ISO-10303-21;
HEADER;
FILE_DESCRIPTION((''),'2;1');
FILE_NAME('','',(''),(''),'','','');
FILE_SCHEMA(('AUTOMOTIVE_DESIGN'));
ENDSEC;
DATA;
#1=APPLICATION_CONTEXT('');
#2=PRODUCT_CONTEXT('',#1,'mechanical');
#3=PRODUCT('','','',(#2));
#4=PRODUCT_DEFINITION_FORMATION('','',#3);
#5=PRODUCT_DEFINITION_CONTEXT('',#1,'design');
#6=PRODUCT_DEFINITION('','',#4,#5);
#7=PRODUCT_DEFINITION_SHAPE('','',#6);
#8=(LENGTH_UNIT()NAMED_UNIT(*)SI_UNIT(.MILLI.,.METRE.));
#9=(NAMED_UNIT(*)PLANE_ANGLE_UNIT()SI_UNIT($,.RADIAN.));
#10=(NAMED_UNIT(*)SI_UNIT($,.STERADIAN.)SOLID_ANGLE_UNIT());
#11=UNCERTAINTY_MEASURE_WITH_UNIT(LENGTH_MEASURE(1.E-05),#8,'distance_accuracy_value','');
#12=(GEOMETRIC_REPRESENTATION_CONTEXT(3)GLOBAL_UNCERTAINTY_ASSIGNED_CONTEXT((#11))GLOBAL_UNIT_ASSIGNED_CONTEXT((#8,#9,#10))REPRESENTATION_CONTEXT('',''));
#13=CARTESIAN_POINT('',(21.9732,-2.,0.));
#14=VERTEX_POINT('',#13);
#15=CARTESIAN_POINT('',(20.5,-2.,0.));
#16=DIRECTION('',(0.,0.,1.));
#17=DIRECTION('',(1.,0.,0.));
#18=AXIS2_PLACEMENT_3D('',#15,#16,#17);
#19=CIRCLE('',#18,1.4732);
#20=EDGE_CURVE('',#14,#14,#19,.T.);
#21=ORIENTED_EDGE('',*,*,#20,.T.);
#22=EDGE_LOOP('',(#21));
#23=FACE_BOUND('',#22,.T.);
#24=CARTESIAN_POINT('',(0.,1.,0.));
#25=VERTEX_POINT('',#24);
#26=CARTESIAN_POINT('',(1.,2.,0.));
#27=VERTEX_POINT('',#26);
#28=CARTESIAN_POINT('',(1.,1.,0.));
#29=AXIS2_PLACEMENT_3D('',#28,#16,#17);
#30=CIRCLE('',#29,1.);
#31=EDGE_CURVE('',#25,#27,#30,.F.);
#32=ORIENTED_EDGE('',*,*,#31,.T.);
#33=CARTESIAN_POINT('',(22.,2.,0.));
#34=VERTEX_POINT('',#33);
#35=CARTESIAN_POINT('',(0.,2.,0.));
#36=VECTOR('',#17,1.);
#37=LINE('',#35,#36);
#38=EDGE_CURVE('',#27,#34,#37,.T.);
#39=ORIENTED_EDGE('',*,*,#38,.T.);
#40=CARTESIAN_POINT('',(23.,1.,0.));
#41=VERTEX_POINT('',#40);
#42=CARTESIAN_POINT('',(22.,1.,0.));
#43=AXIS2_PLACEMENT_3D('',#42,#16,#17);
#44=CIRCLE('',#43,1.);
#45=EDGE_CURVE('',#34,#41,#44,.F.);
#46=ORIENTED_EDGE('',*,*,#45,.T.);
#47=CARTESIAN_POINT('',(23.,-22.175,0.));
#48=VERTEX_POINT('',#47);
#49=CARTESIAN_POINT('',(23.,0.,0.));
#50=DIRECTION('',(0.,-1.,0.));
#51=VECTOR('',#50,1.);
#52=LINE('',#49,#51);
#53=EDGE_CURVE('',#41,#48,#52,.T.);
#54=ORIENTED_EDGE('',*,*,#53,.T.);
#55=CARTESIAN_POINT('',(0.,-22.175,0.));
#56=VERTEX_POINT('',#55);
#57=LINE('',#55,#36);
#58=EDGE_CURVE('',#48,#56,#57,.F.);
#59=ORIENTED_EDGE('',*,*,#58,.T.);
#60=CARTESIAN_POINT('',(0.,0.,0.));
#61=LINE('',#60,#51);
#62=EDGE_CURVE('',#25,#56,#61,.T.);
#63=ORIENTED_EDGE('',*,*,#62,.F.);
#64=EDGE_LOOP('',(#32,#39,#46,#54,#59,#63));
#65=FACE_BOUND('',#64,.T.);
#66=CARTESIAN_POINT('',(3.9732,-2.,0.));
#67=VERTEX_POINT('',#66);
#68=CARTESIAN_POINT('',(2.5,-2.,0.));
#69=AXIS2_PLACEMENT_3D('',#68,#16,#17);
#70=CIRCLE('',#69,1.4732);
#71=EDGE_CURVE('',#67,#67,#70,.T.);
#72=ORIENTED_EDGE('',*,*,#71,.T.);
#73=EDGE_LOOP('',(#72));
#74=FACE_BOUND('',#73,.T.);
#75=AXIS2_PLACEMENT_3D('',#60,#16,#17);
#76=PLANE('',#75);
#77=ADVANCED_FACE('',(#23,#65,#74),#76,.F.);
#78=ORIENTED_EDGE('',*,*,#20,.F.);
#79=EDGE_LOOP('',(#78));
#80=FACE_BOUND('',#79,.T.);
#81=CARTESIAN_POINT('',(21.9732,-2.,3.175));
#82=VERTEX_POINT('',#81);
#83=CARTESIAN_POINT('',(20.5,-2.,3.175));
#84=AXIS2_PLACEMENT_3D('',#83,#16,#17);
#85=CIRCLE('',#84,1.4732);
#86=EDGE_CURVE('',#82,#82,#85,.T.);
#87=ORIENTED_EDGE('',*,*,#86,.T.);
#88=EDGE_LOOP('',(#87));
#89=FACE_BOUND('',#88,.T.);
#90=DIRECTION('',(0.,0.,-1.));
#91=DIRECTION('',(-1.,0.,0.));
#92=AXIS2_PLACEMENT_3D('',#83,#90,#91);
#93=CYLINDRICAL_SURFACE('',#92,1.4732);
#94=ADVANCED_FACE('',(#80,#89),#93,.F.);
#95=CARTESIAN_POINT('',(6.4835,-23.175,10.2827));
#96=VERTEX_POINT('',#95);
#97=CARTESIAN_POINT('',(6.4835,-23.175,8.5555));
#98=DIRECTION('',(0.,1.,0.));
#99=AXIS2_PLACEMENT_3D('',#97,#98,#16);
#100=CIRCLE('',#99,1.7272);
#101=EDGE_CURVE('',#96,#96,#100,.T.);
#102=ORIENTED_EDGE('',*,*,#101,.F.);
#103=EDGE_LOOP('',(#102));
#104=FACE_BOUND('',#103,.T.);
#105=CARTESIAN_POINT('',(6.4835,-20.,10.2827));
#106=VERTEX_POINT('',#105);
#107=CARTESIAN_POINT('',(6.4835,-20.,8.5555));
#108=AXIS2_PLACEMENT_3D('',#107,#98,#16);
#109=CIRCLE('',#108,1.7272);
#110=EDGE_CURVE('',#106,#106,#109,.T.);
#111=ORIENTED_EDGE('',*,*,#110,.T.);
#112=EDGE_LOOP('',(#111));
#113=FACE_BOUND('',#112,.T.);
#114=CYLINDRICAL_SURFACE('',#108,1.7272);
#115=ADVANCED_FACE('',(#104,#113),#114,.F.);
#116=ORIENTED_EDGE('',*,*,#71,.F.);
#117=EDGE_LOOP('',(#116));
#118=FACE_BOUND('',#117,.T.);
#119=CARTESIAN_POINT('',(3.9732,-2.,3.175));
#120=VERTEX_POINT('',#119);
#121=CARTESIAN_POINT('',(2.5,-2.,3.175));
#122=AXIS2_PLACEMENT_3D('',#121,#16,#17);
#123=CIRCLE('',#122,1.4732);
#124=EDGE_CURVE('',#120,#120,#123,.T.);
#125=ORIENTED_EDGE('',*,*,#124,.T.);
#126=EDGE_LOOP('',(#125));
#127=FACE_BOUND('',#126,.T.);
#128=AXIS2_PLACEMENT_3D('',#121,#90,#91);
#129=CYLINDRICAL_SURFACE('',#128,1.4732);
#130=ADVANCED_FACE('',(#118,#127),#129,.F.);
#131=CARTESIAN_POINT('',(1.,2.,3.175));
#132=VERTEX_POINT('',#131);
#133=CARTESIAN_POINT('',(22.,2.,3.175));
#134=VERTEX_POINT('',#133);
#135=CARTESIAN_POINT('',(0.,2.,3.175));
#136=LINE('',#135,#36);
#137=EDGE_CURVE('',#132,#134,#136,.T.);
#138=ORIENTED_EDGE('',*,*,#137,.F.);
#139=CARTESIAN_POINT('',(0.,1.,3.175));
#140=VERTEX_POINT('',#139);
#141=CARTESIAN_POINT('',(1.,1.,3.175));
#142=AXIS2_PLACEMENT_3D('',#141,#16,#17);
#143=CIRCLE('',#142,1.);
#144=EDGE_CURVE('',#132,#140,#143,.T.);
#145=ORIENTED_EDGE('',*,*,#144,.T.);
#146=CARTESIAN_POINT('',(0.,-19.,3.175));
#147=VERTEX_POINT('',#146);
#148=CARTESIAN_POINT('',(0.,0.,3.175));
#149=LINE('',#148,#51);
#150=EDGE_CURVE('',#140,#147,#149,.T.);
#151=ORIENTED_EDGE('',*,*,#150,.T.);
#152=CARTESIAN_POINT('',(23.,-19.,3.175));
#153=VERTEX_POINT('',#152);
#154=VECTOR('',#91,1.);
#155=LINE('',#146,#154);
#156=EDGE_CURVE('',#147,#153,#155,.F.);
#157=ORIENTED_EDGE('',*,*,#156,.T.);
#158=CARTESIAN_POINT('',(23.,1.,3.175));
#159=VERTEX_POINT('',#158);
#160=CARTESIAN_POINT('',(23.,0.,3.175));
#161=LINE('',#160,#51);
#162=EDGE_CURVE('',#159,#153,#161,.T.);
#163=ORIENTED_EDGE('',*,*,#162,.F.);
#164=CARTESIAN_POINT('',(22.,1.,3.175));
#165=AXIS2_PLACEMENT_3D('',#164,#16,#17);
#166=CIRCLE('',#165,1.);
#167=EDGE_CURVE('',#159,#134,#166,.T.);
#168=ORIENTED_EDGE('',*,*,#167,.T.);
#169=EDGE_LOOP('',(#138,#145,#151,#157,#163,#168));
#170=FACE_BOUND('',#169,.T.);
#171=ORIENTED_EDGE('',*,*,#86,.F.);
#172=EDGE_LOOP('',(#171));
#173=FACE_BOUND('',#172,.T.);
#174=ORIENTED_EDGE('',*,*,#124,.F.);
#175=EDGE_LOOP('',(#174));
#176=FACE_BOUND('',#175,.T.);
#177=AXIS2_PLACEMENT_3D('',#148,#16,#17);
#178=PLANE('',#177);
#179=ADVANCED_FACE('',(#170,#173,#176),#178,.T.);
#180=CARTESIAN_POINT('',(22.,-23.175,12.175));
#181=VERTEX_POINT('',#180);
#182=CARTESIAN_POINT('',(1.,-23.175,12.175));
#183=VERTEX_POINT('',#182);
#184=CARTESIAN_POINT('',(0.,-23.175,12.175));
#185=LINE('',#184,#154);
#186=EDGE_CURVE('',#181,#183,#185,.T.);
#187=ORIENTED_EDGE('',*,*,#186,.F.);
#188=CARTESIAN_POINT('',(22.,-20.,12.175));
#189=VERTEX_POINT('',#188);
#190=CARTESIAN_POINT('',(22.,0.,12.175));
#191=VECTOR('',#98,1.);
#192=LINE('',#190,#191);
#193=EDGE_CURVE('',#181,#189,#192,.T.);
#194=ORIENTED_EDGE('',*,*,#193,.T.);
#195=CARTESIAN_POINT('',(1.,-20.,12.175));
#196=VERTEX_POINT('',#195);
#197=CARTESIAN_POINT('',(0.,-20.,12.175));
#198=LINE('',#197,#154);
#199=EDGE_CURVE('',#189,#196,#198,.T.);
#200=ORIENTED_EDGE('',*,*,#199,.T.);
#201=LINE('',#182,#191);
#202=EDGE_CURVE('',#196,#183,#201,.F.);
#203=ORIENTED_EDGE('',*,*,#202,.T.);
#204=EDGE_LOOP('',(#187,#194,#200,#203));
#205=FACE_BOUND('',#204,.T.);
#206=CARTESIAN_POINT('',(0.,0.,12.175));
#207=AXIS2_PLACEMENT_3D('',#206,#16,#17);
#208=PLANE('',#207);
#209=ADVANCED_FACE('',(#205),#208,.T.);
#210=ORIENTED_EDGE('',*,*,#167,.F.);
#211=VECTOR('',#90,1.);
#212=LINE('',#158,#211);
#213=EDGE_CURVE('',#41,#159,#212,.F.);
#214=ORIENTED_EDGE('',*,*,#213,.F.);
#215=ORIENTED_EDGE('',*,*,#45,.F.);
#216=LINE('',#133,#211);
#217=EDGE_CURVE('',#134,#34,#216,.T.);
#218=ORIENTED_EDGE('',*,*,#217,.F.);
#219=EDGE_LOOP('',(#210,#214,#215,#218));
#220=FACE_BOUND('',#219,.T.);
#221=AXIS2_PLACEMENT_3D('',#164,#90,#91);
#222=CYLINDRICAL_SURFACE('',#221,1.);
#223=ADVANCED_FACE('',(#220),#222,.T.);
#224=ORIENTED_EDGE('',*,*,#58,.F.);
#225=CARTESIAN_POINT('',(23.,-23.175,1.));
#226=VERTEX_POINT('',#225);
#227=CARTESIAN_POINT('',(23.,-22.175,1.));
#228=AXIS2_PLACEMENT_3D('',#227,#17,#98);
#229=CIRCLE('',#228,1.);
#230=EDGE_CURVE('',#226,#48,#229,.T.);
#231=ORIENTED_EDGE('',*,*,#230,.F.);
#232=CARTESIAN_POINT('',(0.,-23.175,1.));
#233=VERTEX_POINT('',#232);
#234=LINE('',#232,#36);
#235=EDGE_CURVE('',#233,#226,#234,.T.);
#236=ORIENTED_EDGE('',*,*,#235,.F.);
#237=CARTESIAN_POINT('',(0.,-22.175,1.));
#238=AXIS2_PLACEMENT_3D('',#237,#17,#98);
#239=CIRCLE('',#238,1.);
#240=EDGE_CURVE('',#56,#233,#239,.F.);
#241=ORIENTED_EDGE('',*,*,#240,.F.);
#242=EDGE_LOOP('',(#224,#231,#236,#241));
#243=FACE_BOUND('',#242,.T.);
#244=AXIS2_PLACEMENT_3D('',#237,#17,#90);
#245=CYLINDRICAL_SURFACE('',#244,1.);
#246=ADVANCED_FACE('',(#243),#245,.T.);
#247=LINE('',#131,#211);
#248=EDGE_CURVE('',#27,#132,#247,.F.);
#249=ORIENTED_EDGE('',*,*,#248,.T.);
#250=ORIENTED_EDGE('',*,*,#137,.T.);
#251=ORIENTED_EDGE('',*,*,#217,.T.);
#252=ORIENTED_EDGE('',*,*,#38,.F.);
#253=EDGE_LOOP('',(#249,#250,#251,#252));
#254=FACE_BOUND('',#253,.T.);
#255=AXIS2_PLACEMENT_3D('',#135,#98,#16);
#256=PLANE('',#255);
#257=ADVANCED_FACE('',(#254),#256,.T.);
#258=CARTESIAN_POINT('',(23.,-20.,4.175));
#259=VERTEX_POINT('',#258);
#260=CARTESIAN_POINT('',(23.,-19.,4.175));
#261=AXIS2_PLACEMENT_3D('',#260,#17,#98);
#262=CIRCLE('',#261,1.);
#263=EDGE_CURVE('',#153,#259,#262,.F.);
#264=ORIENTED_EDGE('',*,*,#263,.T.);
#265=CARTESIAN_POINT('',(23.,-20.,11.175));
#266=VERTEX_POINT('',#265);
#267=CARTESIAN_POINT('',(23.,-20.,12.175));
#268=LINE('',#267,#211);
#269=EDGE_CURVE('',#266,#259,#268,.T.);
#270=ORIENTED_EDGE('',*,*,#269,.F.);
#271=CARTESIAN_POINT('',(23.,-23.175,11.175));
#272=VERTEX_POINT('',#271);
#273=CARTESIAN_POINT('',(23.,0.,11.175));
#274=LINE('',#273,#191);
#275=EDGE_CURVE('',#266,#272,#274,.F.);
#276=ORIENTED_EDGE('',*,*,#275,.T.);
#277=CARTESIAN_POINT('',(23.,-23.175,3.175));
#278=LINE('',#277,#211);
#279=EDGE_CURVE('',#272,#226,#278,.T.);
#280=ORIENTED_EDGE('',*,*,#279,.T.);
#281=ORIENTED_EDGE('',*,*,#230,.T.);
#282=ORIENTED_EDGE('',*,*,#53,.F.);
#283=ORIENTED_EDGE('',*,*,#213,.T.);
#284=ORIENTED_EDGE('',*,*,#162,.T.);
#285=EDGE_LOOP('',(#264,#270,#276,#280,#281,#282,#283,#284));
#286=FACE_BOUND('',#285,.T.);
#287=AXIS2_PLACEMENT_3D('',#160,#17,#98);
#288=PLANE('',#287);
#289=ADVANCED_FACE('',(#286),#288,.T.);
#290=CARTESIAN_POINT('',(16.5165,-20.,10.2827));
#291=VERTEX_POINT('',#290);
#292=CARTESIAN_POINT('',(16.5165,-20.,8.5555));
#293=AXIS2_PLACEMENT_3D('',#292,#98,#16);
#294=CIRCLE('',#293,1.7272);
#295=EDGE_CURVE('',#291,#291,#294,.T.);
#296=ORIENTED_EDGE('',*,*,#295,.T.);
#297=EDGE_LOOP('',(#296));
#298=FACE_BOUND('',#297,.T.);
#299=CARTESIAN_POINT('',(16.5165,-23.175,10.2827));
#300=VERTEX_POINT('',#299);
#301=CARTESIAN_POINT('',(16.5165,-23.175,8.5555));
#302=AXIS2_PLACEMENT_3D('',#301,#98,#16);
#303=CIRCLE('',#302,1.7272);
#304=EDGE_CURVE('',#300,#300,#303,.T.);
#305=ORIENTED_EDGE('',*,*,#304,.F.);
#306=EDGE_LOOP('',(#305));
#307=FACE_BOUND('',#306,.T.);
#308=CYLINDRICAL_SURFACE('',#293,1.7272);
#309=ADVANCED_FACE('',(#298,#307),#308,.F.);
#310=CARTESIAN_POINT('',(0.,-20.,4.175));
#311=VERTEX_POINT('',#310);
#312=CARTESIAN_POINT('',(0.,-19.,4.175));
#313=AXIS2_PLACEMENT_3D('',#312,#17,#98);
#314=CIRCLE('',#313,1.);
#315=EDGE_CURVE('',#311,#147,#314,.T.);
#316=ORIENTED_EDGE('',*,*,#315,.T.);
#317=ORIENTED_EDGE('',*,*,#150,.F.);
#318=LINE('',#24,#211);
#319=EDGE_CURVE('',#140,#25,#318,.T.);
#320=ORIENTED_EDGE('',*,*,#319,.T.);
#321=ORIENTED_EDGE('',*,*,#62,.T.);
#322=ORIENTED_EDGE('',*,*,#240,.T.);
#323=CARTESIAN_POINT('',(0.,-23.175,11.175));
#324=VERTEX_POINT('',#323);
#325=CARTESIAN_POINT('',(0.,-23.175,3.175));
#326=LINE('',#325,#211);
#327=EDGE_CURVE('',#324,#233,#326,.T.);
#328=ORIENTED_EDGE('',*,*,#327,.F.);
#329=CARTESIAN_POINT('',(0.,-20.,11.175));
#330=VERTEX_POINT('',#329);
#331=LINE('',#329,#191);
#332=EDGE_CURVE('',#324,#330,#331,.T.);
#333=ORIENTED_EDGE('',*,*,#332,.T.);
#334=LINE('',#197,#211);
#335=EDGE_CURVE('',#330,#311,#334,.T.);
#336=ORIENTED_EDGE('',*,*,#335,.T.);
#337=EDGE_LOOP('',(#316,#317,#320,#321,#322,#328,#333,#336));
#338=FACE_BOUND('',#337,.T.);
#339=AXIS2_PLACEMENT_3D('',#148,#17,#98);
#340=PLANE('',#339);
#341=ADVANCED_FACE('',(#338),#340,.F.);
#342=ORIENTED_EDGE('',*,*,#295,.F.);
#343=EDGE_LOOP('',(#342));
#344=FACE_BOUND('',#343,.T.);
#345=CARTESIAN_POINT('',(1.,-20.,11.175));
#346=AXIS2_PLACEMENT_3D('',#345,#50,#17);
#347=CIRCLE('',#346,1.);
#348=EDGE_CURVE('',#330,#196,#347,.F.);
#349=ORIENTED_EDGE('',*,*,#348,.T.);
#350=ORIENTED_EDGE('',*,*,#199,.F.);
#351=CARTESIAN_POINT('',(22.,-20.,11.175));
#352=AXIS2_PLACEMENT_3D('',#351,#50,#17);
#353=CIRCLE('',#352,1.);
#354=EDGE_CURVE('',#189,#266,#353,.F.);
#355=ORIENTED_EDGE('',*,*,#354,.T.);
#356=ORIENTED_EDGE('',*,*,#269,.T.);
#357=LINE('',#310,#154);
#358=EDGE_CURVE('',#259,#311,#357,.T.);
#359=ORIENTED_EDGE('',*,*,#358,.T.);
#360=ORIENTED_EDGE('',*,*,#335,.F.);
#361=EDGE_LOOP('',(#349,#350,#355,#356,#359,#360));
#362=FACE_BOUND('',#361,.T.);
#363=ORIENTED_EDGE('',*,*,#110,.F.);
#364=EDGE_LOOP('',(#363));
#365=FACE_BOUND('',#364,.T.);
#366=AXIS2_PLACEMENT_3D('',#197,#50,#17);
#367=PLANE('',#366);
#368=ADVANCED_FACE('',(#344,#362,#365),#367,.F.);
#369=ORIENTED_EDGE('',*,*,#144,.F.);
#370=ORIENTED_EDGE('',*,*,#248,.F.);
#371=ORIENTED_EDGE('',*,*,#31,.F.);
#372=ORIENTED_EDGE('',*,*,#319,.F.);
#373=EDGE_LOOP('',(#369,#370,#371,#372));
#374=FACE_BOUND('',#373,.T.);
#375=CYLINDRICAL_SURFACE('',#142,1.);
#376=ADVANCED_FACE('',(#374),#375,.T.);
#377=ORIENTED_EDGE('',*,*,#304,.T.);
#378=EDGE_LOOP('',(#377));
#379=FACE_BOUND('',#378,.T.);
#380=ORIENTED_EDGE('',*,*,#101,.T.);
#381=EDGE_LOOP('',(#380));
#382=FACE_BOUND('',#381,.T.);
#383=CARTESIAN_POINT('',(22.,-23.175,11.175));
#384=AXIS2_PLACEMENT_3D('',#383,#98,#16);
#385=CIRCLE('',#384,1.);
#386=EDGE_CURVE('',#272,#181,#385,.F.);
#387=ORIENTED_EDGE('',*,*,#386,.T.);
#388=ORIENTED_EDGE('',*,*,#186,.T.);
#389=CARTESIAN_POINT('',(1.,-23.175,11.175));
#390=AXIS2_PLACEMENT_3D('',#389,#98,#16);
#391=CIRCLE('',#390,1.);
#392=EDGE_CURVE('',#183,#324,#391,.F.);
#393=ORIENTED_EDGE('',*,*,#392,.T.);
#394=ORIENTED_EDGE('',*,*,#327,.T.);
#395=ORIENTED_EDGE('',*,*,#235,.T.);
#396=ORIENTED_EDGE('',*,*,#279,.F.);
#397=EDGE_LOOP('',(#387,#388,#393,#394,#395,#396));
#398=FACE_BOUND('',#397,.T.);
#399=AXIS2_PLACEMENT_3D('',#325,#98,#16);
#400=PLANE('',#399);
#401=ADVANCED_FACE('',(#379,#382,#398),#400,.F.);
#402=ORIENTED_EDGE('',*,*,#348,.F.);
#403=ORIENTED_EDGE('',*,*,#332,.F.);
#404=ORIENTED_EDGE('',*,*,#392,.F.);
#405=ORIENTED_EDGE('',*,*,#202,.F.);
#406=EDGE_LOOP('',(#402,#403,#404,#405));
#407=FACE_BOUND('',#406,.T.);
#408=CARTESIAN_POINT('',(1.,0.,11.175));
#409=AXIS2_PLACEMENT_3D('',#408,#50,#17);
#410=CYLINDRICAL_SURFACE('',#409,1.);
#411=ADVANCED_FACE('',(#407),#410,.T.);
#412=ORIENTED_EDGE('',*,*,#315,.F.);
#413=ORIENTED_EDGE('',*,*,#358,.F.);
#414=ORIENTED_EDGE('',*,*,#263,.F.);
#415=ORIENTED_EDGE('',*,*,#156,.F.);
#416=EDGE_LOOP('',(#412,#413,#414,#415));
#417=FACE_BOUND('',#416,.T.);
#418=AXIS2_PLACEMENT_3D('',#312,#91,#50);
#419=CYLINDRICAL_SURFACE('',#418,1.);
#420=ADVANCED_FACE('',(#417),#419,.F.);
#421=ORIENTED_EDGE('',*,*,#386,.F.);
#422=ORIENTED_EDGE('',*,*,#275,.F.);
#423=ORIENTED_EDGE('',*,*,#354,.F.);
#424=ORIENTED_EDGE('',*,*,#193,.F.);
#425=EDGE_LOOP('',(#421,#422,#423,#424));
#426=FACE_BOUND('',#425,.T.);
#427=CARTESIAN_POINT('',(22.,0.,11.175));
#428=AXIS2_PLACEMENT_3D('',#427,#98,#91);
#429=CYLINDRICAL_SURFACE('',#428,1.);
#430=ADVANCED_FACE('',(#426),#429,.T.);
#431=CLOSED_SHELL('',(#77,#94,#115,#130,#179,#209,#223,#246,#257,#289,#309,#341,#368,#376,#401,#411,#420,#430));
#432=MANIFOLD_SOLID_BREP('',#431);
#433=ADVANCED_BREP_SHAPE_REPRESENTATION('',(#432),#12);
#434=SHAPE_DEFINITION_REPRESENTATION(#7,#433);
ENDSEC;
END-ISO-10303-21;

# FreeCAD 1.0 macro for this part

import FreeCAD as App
import Part
import Sketcher
from FreeCAD import Vector


def edges_at(feature, points):
    """Names of the edges that pass closest to the given points."""
    edges = feature.Shape.Edges
    near = lambda p: min(range(len(edges)), key=lambda i: edges[i].distToShape(Part.Vertex(*p))[0])
    return sorted({f"Edge{near(p) + 1}" for p in points})

doc = App.newDocument("Part")
body = doc.addObject("PartDesign::Body", "Body")

# Sketch on XY plane
sketch1 = body.newObject("Sketcher::SketchObject", "Sketch")
sketch1.AttachmentSupport = (doc.getObject("XY_Plane"), [""])
sketch1.MapMode = "FlatFace"
sketch1.addGeometry([
    Part.LineSegment(Vector(0, -23.2, 0), Vector(23, -23.2, 0)),  # 0
    Part.LineSegment(Vector(23, -23.2, 0), Vector(23, 2, 0)),  # 1
    Part.LineSegment(Vector(23, 2, 0), Vector(0, 2, 0)),  # 2
    Part.LineSegment(Vector(0, 2, 0), Vector(0, -23.2, 0)),  # 3
    Part.Circle(Vector(2.5, -2, 0), Vector(0, 0, 1), 1.5),  # 4
    Part.Circle(Vector(20.5, -2, 0), Vector(0, 0, 1), 1.5),  # 5
], False)
sketch1.addConstraint([
    Sketcher.Constraint("Coincident", 0, 2, 1, 1),
    Sketcher.Constraint("Coincident", 1, 2, 2, 1),
    Sketcher.Constraint("Coincident", 2, 2, 3, 1),
    Sketcher.Constraint("Coincident", 3, 2, 0, 1),
    Sketcher.Constraint("Horizontal", 0),
    Sketcher.Constraint("Vertical", 1),
    Sketcher.Constraint("Horizontal", 2),
    Sketcher.Constraint("Vertical", 3),
    Sketcher.Constraint("Equal", 4, 5),
    Sketcher.Constraint("PointOnObject", 2, 2, -2),
    Sketcher.Constraint("Horizontal", 4, 3, 5, 3),
    Sketcher.Constraint("DistanceX", 0, 1, 0, 2, 23.0),
    Sketcher.Constraint("DistanceY", 4, 3, -1, 1, 2.0),
    Sketcher.Constraint("DistanceY", -1, 1, 1, 2, 2.0),
    Sketcher.Constraint("DistanceX", 4, 3, 5, 3, 18.0),
    Sketcher.Constraint("Diameter", 4, 2.9464),
    Sketcher.Constraint("DistanceX", -1, 1, 4, 3, 2.5),
    Sketcher.Constraint("DistanceY", 1, 1, 1, 2, 25.175),
])
pad1 = body.newObject("PartDesign::Pad", "Pad")
pad1.Profile = sketch1
pad1.Length = 3.175

# Sketch on XY plane
sketch2 = body.newObject("Sketcher::SketchObject", "Sketch001")
sketch2.AttachmentSupport = (doc.getObject("XY_Plane"), [""])
sketch2.MapMode = "FlatFace"
sketch2.AttachmentOffset = App.Placement(Vector(0, 0, 3.175), App.Rotation())
sketch2.addGeometry([
    Part.LineSegment(Vector(0, -20, 0), Vector(0, -23.2, 0)),
    Part.LineSegment(Vector(0, -23.2, 0), Vector(23, -23.2, 0)),
    Part.LineSegment(Vector(23, -23.2, 0), Vector(23, -20, 0)),
    Part.LineSegment(Vector(23, -20, 0), Vector(0, -20, 0)),
], False)
sketch2.addConstraint([
    Sketcher.Constraint("Coincident", 0, 2, 1, 1),
    Sketcher.Constraint("Coincident", 1, 2, 2, 1),
    Sketcher.Constraint("Coincident", 2, 2, 3, 1),
    Sketcher.Constraint("Coincident", 3, 2, 0, 1),
    Sketcher.Constraint("Vertical", 0),
    Sketcher.Constraint("Horizontal", 1),
    Sketcher.Constraint("Vertical", 2),
    Sketcher.Constraint("Horizontal", 3),
    Sketcher.Constraint("PointOnObject", 0, 2, -2),
    Sketcher.Constraint("DistanceX", 1, 1, 1, 2, 23.0),
    Sketcher.Constraint("DistanceY", 2, 2, -1, 1, 20.0),
    Sketcher.Constraint("DistanceY", 0, 2, 0, 1, 3.175),
])
pad2 = body.newObject("PartDesign::Pad", "Pad001")
pad2.Profile = sketch2
pad2.Length = 9

# Sketch on XZ plane
sketch3 = body.newObject("Sketcher::SketchObject", "Sketch002")
sketch3.AttachmentSupport = (doc.getObject("XZ_Plane"), [""])
sketch3.MapMode = "FlatFace"
sketch3.AttachmentOffset = App.Placement(Vector(0, 0, 20), App.Rotation())
sketch3.addGeometry([
    Part.Circle(Vector(6.5, 8.6, 0), Vector(0, 0, 1), 1.7),
    Part.Circle(Vector(16.5, 8.6, 0), Vector(0, 0, 1), 1.7),
], False)
sketch3.addConstraint([
    Sketcher.Constraint("Equal", 0, 1),
    Sketcher.Constraint("Horizontal", 0, 3, 1, 3),
    Sketcher.Constraint("Diameter", 0, 3.4544),
    Sketcher.Constraint("DistanceX", 0, 3, 1, 3, 10.033),
    Sketcher.Constraint("DistanceX", -1, 1, 0, 3, 6.4835),
    Sketcher.Constraint("DistanceY", -1, 1, 0, 3, 8.5555),
])
doc.recompute()
hole = body.newObject("PartDesign::Hole", "Hole")
hole.Profile = sketch3
hole.ThreadType = "None"
hole.Diameter = 3.4544
hole.DepthType = "ThroughAll"
hole.Reversed = True
doc.recompute()

fillet = body.newObject("PartDesign::Fillet", "Fillet")
fillet.Base = (hole, edges_at(hole, [
    (0, 2, 1.587),
    (23, 2, 1.587),
    (0, -21.587, 12.175),
    (11.5, -20, 3.175),
    (23, -21.587, 12.175),
    (11.5, -23.175, 0),
]))
fillet.Radius = 1

doc.recompute()
